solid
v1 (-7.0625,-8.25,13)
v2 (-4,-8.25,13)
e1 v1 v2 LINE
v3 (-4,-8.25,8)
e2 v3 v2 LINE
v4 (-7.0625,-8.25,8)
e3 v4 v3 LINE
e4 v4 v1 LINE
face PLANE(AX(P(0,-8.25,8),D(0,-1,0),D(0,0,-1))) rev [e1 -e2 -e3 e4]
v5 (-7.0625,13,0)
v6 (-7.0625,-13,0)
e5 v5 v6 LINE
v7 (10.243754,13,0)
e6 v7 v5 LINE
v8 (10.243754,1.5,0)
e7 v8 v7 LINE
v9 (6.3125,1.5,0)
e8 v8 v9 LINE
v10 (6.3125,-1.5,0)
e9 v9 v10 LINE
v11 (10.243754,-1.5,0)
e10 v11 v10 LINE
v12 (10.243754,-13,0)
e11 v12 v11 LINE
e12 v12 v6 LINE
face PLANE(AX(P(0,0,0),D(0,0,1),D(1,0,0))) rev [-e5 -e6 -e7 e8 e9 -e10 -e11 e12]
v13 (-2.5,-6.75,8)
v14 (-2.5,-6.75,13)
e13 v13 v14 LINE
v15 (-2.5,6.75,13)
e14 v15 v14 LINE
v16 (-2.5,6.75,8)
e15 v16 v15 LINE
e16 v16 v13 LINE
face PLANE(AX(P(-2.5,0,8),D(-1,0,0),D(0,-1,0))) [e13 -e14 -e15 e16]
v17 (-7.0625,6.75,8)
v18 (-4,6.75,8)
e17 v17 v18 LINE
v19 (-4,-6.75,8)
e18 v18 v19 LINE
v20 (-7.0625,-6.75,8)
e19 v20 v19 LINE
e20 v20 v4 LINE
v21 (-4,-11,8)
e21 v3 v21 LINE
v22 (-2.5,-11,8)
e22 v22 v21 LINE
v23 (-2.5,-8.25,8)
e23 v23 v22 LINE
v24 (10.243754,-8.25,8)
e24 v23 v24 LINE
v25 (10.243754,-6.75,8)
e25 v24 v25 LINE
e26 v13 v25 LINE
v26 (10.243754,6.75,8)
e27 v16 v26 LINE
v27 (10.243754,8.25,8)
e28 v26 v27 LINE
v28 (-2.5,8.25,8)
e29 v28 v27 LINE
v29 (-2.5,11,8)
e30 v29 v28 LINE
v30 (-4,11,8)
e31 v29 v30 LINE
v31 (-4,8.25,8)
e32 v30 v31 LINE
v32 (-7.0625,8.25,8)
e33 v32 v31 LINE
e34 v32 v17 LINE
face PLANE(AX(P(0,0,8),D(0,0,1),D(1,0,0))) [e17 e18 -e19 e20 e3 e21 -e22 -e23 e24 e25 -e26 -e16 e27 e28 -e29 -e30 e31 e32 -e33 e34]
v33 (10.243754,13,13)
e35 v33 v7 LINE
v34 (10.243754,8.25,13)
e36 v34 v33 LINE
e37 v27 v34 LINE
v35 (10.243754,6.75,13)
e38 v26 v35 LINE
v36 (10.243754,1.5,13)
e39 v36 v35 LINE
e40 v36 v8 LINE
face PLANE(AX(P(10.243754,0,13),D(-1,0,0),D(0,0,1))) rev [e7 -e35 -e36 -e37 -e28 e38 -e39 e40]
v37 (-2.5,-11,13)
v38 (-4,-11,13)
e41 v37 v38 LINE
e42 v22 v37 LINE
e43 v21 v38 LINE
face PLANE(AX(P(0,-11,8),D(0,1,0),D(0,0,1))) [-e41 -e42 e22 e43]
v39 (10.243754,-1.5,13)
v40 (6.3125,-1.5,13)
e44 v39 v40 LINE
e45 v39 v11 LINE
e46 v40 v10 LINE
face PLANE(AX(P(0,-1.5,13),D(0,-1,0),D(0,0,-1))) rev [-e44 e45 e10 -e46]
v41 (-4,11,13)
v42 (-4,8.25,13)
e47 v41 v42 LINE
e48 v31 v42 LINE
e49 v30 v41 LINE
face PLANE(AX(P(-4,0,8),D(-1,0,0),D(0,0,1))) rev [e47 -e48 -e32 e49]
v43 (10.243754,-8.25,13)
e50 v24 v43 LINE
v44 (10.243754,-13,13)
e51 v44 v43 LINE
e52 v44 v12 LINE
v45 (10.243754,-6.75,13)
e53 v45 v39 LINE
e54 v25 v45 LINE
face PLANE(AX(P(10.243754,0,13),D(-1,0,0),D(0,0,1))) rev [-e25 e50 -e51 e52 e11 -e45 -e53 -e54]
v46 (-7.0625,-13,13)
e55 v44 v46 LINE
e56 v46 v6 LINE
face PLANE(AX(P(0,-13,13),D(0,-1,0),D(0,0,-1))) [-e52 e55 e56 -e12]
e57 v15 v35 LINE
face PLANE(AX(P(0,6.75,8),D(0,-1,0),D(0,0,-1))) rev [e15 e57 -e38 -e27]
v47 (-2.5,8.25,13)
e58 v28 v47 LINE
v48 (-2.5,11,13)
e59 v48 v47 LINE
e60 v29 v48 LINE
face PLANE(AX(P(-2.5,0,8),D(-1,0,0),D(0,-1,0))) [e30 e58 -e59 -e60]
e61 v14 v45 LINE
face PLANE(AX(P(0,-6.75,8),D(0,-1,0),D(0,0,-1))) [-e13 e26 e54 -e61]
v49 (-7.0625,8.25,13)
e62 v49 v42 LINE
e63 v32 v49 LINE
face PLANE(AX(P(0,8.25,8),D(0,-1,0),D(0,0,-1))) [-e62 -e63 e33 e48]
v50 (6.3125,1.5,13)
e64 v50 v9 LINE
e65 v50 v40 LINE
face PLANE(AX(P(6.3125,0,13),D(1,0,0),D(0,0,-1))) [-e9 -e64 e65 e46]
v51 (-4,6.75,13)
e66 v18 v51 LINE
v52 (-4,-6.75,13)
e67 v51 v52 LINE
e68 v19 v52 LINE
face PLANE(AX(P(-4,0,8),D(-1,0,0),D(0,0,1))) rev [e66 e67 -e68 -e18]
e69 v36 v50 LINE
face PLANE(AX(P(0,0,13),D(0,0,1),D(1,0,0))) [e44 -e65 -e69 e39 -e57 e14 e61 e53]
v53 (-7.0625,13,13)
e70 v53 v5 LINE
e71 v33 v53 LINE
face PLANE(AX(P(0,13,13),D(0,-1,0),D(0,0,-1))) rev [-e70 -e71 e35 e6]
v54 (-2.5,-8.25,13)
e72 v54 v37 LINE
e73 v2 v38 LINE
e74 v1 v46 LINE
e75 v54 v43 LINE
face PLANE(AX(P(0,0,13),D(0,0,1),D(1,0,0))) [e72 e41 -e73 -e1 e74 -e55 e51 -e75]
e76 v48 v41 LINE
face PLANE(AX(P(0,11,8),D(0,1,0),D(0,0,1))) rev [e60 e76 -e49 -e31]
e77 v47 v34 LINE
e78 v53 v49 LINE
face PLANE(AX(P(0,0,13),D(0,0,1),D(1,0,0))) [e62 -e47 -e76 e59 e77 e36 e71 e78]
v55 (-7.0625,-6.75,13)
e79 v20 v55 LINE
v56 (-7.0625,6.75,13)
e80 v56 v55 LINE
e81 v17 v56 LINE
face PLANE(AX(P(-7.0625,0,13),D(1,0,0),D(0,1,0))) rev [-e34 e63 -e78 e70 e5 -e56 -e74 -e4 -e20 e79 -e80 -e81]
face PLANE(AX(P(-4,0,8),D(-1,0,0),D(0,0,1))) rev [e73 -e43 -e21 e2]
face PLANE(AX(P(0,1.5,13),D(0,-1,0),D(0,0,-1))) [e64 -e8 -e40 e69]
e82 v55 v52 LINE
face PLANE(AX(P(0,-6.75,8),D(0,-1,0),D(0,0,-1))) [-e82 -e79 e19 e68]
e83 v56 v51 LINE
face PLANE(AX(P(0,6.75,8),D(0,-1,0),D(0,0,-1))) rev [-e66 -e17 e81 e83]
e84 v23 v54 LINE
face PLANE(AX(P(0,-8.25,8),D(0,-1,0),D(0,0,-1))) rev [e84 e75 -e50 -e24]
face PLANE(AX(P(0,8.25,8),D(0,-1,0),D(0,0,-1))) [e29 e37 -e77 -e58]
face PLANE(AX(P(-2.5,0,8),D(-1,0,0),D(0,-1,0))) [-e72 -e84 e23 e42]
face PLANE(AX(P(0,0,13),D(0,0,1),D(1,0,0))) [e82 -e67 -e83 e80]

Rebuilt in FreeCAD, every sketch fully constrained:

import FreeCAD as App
import Part
import Sketcher
Q = App.Units.Quantity

doc = App.newDocument("Part")
body = doc.addObject("PartDesign::Body", "Body")

# Sketch on XY plane
sketch1 = doc.addObject("Sketcher::SketchObject", "Sketch")
body.addObject(sketch1)
sketch1.AttachmentSupport = (doc.XY_Plane, [""])
sketch1.MapMode = "FlatFace"
sketch1.addGeometry([
    Part.LineSegment(App.Vector(10.243754, 1.5, 0), App.Vector(10.243754, 13, 0)),  # 0
    Part.LineSegment(App.Vector(10.243754, 13, 0), App.Vector(-7.0625, 13, 0)),  # 1
    Part.LineSegment(App.Vector(-7.0625, 13, 0), App.Vector(-7.0625, -13, 0)),  # 2
    Part.LineSegment(App.Vector(-7.0625, -13, 0), App.Vector(10.243754, -13, 0)),  # 3
    Part.LineSegment(App.Vector(10.243754, -13, 0), App.Vector(10.243754, -1.5, 0)),  # 4
    Part.LineSegment(App.Vector(10.243754, -1.5, 0), App.Vector(6.3125, -1.5, 0)),  # 5
    Part.LineSegment(App.Vector(6.3125, -1.5, 0), App.Vector(6.3125, 1.5, 0)),  # 6
    Part.LineSegment(App.Vector(6.3125, 1.5, 0), App.Vector(10.243754, 1.5, 0)),  # 7
], False)
sketch1.addConstraint([
    Sketcher.Constraint("Coincident", 0, 2, 1, 1),
    Sketcher.Constraint("Coincident", 1, 2, 2, 1),
    Sketcher.Constraint("Coincident", 2, 2, 3, 1),
    Sketcher.Constraint("Coincident", 3, 2, 4, 1),
    Sketcher.Constraint("Coincident", 4, 2, 5, 1),
    Sketcher.Constraint("Coincident", 5, 2, 6, 1),
    Sketcher.Constraint("Coincident", 6, 2, 7, 1),
    Sketcher.Constraint("Coincident", 7, 2, 0, 1),
    Sketcher.Constraint("Vertical", 0),
    Sketcher.Constraint("Horizontal", 1),
    Sketcher.Constraint("Vertical", 2),
    Sketcher.Constraint("Horizontal", 3),
    Sketcher.Constraint("Vertical", 4),
    Sketcher.Constraint("Horizontal", 5),
    Sketcher.Constraint("Vertical", 6),
    Sketcher.Constraint("Horizontal", 7),
    Sketcher.Constraint("Symmetric", 0, 2, 3, 2, -1),
    Sketcher.Constraint("Equal", 0, 4),
    Sketcher.Constraint("DistanceY", 2, 2, 2, 1, Q("26 mm")),
    Sketcher.Constraint("DistanceY", 6, 1, 6, 2, Q("3 mm")),
    Sketcher.Constraint("DistanceX", 2, 2, 5, 2, Q("13.375 mm")),
    Sketcher.Constraint("DistanceX", 1, 2, -1, 1, Q("7.0625 mm")),
    Sketcher.Constraint("DistanceX", 1, 2, 1, 1, Q("17.306254 mm")),
])
pad1 = doc.addObject("PartDesign::Pad", "Pad")
body.addObject(pad1)
pad1.Profile = sketch1
pad1.Length = 13

# Sketch on XY plane
sketch2 = doc.addObject("Sketcher::SketchObject", "Sketch001")
body.addObject(sketch2)
sketch2.AttachmentSupport = (doc.XY_Plane, [""])
sketch2.MapMode = "FlatFace"
sketch2.AttachmentOffset = App.Placement(App.Vector(0, 0, 13), App.Rotation())
sketch2.addGeometry([
    Part.LineSegment(App.Vector(10.243754, 6.75, 0), App.Vector(10.243754, 8.25, 0)),  # 0
    Part.LineSegment(App.Vector(10.243754, 8.25, 0), App.Vector(-2.5, 8.25, 0)),  # 1
    Part.LineSegment(App.Vector(-2.5, 8.25, 0), App.Vector(-2.5, 11, 0)),  # 2
    Part.LineSegment(App.Vector(-2.5, 11, 0), App.Vector(-4, 11, 0)),  # 3
    Part.LineSegment(App.Vector(-4, 11, 0), App.Vector(-4, 8.25, 0)),  # 4
    Part.LineSegment(App.Vector(-4, 8.25, 0), App.Vector(-7.0625, 8.25, 0)),  # 5
    Part.LineSegment(App.Vector(-7.0625, 8.25, 0), App.Vector(-7.0625, 6.75, 0)),  # 6
    Part.LineSegment(App.Vector(-7.0625, 6.75, 0), App.Vector(-4, 6.75, 0)),  # 7
    Part.LineSegment(App.Vector(-4, 6.75, 0), App.Vector(-4, -6.75, 0)),  # 8
    Part.LineSegment(App.Vector(-4, -6.75, 0), App.Vector(-7.0625, -6.75, 0)),  # 9
    Part.LineSegment(App.Vector(-7.0625, -6.75, 0), App.Vector(-7.0625, -8.25, 0)),  # 10
    Part.LineSegment(App.Vector(-7.0625, -8.25, 0), App.Vector(-4, -8.25, 0)),  # 11
    Part.LineSegment(App.Vector(-4, -8.25, 0), App.Vector(-4, -11, 0)),  # 12
    Part.LineSegment(App.Vector(-4, -11, 0), App.Vector(-2.5, -11, 0)),  # 13
    Part.LineSegment(App.Vector(-2.5, -11, 0), App.Vector(-2.5, -8.25, 0)),  # 14
    Part.LineSegment(App.Vector(-2.5, -8.25, 0), App.Vector(10.243754, -8.25, 0)),  # 15
    Part.LineSegment(App.Vector(10.243754, -8.25, 0), App.Vector(10.243754, -6.75, 0)),  # 16
    Part.LineSegment(App.Vector(10.243754, -6.75, 0), App.Vector(-2.5, -6.75, 0)),  # 17
    Part.LineSegment(App.Vector(-2.5, -6.75, 0), App.Vector(-2.5, 6.75, 0)),  # 18
    Part.LineSegment(App.Vector(-2.5, 6.75, 0), App.Vector(10.243754, 6.75, 0)),  # 19
], False)
sketch2.addConstraint([
    Sketcher.Constraint("Coincident", 0, 2, 1, 1),
    Sketcher.Constraint("Coincident", 1, 2, 2, 1),
    Sketcher.Constraint("Coincident", 2, 2, 3, 1),
    Sketcher.Constraint("Coincident", 3, 2, 4, 1),
    Sketcher.Constraint("Coincident", 4, 2, 5, 1),
    Sketcher.Constraint("Coincident", 5, 2, 6, 1),
    Sketcher.Constraint("Coincident", 6, 2, 7, 1),
    Sketcher.Constraint("Coincident", 7, 2, 8, 1),
    Sketcher.Constraint("Coincident", 8, 2, 9, 1),
    Sketcher.Constraint("Coincident", 9, 2, 10, 1),
    Sketcher.Constraint("Coincident", 10, 2, 11, 1),
    Sketcher.Constraint("Coincident", 11, 2, 12, 1),
    Sketcher.Constraint("Coincident", 12, 2, 13, 1),
    Sketcher.Constraint("Coincident", 13, 2, 14, 1),
    Sketcher.Constraint("Coincident", 14, 2, 15, 1),
    Sketcher.Constraint("Coincident", 15, 2, 16, 1),
    Sketcher.Constraint("Coincident", 16, 2, 17, 1),
    Sketcher.Constraint("Coincident", 17, 2, 18, 1),
    Sketcher.Constraint("Coincident", 18, 2, 19, 1),
    Sketcher.Constraint("Coincident", 19, 2, 0, 1),
    Sketcher.Constraint("Vertical", 0),
    Sketcher.Constraint("Horizontal", 1),
    Sketcher.Constraint("Vertical", 2),
    Sketcher.Constraint("Horizontal", 3),
    Sketcher.Constraint("Vertical", 4),
    Sketcher.Constraint("Horizontal", 5),
    Sketcher.Constraint("Vertical", 6),
    Sketcher.Constraint("Horizontal", 7),
    Sketcher.Constraint("Vertical", 8),
    Sketcher.Constraint("Horizontal", 9),
    Sketcher.Constraint("Vertical", 10),
    Sketcher.Constraint("Horizontal", 11),
    Sketcher.Constraint("Vertical", 12),
    Sketcher.Constraint("Horizontal", 13),
    Sketcher.Constraint("Vertical", 14),
    Sketcher.Constraint("Horizontal", 15),
    Sketcher.Constraint("Vertical", 16),
    Sketcher.Constraint("Horizontal", 17),
    Sketcher.Constraint("Vertical", 18),
    Sketcher.Constraint("Horizontal", 19),
    Sketcher.Constraint("Symmetric", 6, 2, 9, 2, -1),
    Sketcher.Constraint("Symmetric", 4, 2, 11, 2, -1),
    Sketcher.Constraint("Symmetric", 2, 2, 13, 2, -1),
    Sketcher.Constraint("Symmetric", 0, 2, 15, 2, -1),
    Sketcher.Constraint("Horizontal", 1, 2, 4, 2),
    Sketcher.Constraint("Horizontal", 9, 2, 16, 2),
    Sketcher.Constraint("Horizontal", 7, 2, 18, 2),
    Sketcher.Constraint("Vertical", 4, 2, 7, 2),
    Sketcher.Constraint("Vertical", 14, 2, 17, 2),
    Sketcher.Constraint("Equal", 13, 0),
    Sketcher.Constraint("DistanceX", 3, 2, 3, 1, Q("1.5 mm")),
    Sketcher.Constraint("DistanceY", 8, 2, 8, 1, Q("13.5 mm")),
    Sketcher.Constraint("DistanceY", -1, 1, 2, 2, Q("11 mm")),
    Sketcher.Constraint("DistanceX", 3, 2, -1, 1, Q("4 mm")),
    Sketcher.Constraint("DistanceX", 5, 2, 5, 1, Q("3.0625 mm")),
    Sketcher.Constraint("DistanceX", 1, 2, 1, 1, Q("12.743754 mm")),
])
pocket1 = doc.addObject("PartDesign::Pocket", "Pocket")
body.addObject(pocket1)
pocket1.Profile = sketch2
pocket1.Length = 5

doc.recompute()
